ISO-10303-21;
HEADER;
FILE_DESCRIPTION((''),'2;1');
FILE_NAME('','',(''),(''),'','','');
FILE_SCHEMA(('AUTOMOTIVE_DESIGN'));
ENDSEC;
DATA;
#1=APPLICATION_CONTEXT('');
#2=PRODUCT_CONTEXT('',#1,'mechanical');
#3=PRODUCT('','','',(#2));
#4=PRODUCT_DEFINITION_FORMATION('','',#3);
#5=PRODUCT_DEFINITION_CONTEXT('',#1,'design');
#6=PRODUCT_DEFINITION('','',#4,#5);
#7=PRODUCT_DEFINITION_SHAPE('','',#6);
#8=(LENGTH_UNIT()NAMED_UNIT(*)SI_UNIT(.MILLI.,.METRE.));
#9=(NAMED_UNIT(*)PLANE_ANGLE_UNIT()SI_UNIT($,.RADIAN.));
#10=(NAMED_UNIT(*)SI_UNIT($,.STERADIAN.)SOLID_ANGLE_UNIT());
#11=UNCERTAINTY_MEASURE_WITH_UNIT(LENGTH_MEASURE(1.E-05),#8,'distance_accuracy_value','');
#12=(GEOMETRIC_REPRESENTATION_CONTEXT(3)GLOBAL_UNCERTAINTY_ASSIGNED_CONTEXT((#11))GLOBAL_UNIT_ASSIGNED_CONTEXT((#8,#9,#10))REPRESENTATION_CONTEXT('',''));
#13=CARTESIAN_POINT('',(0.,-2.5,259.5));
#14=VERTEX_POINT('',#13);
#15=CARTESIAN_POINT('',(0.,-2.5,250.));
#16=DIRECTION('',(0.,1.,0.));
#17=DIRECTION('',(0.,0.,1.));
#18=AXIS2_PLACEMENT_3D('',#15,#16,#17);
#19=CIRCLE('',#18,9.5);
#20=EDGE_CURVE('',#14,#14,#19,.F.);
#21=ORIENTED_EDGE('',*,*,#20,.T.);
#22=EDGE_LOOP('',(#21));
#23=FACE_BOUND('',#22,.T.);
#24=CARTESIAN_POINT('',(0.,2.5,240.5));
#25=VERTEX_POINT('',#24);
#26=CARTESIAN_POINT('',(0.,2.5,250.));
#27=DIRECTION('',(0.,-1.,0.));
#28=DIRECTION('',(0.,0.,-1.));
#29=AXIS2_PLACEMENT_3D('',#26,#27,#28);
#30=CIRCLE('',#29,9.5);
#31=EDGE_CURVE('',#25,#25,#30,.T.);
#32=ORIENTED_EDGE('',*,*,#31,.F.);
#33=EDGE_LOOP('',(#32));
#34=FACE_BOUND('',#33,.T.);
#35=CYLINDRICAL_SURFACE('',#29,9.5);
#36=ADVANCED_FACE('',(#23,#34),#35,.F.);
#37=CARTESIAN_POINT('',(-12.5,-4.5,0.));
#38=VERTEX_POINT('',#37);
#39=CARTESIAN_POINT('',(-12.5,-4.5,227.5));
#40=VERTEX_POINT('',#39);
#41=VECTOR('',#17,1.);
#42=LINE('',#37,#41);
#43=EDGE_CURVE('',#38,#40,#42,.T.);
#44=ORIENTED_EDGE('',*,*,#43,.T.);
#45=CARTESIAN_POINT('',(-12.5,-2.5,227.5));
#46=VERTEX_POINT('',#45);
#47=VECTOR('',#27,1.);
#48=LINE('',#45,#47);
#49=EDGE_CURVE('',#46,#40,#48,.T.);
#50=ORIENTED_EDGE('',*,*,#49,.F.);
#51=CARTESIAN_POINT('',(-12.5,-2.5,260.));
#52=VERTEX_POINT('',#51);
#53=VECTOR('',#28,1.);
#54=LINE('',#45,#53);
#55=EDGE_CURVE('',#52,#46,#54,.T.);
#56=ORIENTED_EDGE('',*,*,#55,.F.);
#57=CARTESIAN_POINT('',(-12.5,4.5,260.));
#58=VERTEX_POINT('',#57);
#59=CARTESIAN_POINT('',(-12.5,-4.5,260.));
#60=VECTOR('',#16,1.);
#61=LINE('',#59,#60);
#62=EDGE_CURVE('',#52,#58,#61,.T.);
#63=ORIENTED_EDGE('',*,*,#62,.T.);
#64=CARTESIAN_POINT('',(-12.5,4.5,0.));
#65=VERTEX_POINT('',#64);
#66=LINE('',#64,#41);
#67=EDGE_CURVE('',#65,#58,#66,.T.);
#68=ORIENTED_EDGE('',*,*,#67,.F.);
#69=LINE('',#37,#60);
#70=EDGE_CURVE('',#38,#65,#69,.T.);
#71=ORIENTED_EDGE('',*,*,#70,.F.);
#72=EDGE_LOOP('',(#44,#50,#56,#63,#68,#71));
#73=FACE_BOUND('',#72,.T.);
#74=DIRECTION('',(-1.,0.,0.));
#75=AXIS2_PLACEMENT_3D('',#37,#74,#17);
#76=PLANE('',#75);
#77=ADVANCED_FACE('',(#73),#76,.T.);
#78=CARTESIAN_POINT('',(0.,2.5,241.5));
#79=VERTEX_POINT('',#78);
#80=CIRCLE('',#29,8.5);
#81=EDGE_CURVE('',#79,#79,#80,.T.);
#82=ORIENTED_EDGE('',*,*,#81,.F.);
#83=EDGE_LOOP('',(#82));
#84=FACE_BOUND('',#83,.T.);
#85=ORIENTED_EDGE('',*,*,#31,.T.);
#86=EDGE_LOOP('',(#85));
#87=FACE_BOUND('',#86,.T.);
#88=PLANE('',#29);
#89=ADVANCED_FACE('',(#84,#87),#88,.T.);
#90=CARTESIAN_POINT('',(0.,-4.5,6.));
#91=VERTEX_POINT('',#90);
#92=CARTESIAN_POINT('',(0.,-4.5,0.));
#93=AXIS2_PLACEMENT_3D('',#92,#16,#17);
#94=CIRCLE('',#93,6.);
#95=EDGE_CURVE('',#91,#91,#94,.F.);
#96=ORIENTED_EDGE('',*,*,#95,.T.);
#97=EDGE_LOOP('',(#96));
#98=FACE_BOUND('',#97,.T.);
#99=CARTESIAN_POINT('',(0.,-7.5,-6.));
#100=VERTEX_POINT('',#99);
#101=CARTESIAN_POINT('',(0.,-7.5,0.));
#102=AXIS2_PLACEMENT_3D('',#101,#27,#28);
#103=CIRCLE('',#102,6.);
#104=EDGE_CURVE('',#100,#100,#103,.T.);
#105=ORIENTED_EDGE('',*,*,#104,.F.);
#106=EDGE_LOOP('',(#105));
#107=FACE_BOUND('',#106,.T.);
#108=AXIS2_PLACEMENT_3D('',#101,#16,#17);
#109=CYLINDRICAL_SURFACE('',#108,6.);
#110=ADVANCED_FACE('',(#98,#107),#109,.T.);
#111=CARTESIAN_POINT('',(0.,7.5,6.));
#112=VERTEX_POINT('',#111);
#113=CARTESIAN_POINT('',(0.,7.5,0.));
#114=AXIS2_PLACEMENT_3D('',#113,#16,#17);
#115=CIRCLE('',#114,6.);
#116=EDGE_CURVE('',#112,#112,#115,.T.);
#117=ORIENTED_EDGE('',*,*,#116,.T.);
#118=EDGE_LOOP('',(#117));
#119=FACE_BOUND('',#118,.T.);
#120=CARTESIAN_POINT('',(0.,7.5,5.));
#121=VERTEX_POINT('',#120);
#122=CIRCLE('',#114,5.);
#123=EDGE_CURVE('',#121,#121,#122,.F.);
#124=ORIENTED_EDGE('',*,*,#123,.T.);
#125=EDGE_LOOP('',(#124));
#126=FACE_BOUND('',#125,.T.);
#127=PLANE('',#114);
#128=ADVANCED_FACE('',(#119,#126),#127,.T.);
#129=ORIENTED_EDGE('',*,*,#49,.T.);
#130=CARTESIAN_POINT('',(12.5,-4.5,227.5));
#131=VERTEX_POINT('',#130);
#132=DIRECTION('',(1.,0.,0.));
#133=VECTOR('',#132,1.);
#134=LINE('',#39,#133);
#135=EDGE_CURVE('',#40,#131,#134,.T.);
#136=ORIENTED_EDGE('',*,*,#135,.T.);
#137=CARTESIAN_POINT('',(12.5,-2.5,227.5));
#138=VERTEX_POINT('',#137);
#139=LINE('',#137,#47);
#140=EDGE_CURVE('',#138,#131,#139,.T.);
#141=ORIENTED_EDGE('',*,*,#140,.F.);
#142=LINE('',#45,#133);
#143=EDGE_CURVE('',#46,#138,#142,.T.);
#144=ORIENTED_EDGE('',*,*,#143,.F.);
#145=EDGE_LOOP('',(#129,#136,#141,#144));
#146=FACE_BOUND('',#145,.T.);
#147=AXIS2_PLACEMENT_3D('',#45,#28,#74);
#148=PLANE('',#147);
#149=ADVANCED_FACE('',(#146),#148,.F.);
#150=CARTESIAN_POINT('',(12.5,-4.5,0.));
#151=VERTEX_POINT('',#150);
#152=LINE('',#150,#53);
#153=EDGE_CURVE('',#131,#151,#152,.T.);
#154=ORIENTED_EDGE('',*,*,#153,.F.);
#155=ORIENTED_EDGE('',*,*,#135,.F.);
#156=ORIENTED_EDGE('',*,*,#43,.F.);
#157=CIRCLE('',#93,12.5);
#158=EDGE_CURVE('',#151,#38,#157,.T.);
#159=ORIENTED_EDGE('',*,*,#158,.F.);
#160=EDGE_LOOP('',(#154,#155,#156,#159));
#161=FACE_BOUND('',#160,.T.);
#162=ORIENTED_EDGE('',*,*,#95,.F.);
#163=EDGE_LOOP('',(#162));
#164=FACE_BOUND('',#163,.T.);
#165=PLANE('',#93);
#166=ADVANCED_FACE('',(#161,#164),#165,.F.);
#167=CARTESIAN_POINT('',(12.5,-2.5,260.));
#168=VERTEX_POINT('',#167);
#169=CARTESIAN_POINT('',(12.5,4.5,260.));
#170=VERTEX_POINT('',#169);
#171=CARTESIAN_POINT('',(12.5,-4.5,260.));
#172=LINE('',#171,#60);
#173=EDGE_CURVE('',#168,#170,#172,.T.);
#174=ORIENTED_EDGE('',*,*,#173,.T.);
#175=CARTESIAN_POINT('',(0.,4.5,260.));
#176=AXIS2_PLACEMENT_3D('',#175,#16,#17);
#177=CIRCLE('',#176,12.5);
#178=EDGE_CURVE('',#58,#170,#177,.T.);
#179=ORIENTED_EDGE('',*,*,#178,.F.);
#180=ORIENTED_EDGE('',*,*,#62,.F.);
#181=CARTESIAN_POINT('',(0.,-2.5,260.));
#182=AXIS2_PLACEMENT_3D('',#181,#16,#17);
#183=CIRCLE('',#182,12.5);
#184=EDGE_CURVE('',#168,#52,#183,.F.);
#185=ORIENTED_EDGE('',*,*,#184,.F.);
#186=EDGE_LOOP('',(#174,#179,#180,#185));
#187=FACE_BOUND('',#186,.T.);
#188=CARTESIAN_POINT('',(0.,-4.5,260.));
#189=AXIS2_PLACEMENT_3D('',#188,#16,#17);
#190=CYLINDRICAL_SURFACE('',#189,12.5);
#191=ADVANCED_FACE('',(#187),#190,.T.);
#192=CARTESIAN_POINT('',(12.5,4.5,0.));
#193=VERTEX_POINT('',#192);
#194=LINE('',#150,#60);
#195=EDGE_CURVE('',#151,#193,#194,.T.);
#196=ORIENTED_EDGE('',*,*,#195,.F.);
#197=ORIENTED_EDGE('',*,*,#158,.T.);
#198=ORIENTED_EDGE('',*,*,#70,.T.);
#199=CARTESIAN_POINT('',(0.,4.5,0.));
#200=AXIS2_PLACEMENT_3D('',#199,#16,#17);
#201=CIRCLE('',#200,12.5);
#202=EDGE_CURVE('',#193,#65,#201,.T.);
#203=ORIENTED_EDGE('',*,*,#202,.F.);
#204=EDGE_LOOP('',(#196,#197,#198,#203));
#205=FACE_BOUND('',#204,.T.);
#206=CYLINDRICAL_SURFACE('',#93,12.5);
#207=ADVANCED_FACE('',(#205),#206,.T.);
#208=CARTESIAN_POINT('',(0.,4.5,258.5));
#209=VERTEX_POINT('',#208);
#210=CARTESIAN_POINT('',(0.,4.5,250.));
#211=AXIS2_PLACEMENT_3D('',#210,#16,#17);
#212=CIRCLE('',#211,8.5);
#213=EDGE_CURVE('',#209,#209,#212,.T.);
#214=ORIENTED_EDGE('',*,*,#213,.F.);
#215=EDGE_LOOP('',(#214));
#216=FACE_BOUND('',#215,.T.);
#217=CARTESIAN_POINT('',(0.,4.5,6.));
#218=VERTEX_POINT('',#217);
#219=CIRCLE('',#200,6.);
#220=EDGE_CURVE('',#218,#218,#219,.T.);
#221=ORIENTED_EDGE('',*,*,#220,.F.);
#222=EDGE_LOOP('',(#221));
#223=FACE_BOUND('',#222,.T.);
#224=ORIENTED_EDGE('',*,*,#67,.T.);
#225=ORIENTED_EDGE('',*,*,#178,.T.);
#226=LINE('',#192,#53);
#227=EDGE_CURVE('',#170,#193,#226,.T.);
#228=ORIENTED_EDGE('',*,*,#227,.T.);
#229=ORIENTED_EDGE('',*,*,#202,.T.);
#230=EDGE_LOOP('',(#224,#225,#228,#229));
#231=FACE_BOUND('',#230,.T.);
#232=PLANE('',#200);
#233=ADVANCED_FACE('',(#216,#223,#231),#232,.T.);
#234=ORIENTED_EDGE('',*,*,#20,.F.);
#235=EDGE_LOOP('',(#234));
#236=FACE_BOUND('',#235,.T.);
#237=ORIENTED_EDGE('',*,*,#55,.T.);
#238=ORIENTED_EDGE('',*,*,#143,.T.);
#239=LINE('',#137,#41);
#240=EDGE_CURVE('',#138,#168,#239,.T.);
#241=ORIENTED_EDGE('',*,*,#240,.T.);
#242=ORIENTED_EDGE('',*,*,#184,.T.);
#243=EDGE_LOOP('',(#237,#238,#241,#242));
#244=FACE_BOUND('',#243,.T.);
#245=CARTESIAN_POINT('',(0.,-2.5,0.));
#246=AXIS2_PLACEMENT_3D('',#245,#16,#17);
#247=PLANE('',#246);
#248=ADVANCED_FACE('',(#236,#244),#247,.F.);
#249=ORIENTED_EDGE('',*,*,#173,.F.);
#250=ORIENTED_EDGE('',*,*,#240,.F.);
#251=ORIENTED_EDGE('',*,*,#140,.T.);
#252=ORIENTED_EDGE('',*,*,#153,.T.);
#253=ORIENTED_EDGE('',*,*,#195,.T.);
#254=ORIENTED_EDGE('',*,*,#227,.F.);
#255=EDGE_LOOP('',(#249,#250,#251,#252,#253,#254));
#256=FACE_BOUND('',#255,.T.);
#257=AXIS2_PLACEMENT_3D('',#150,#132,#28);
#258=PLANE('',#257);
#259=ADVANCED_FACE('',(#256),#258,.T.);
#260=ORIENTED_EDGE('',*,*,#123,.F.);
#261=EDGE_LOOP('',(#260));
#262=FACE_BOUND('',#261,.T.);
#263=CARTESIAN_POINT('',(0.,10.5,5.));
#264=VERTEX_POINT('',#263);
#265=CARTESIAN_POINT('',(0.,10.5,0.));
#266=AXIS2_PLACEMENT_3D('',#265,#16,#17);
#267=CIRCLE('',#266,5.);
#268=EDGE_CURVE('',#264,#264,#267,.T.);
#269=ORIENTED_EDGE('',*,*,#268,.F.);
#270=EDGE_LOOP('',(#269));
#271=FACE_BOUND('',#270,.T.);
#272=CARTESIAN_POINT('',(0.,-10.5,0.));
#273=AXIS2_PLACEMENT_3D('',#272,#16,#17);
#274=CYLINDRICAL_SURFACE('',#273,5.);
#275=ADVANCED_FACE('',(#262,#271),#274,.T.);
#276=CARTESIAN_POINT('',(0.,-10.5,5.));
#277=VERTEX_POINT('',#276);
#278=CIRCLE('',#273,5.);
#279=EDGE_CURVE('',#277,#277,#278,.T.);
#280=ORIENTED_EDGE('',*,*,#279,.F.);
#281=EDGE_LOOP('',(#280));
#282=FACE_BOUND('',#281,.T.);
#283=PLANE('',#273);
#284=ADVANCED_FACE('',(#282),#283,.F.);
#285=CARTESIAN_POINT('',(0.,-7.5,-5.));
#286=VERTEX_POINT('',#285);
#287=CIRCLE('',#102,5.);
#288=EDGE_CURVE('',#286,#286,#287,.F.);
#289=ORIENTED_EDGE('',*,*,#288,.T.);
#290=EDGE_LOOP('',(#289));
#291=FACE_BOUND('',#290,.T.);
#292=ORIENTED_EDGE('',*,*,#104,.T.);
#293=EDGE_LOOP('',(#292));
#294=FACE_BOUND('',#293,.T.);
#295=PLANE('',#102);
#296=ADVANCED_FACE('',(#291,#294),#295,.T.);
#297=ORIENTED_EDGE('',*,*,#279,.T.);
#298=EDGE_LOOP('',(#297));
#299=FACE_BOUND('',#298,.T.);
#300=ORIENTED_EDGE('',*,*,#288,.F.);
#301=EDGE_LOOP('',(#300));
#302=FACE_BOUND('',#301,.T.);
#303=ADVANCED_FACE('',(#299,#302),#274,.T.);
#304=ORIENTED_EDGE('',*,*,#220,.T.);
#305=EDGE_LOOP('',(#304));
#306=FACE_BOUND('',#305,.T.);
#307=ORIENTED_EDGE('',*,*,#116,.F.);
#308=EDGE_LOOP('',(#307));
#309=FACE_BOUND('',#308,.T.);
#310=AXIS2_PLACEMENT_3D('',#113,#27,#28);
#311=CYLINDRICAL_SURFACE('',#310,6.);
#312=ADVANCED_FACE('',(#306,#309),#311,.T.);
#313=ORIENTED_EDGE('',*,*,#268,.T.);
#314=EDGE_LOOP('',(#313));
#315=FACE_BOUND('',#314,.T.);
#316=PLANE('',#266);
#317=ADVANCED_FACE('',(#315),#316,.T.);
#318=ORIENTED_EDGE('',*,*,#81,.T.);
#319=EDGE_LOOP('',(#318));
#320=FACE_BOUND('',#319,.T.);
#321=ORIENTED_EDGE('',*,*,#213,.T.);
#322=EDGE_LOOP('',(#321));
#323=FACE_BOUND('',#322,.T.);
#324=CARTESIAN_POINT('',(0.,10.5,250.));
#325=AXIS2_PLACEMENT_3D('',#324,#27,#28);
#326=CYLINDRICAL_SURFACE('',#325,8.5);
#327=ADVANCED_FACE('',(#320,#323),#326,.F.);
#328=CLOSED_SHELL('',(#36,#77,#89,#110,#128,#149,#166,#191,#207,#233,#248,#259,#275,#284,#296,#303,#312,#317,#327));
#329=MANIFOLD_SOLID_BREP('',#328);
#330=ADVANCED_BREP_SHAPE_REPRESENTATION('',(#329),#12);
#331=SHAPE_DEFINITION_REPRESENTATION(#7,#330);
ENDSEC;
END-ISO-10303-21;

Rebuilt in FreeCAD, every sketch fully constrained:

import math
import FreeCAD as App
import Part
import Sketcher

V = App.Vector
Q = App.Units.Quantity


def add_polygon(sketch, points):
    """Adds a closed chain of lines whose ends are joined by coincident constraints."""
    first, n = sketch.GeometryCount, len(points)
    for a, b in zip(points, points[1:] + points[:1]):
        sketch.addGeometry(Part.LineSegment(App.Vector(*a, 0), App.Vector(*b, 0)), False)
    for i in range(n):
        sketch.addConstraint(Sketcher.Constraint("Coincident", first + i, 2, first + (i + 1) % n, 1))

doc = App.newDocument("Part")
body = doc.addObject("PartDesign::Body", "Body")

sketch1 = body.newObject("Sketcher::SketchObject", "Sketch")
sketch1.AttachmentSupport = (doc.getObject("XZ_Plane"), [""])
sketch1.MapMode = "FlatFace"
sketch1.addGeometry(Part.Circle(V(0, 0, 0), V(0, 0, 1), 5), False)
sketch1.addConstraint(Sketcher.Constraint("Coincident", 0, 3, -1, 1))
sketch1.addConstraint(Sketcher.Constraint("Diameter", 0, Q("10 mm")))
pad1 = body.newObject("PartDesign::Pad", "Pad")
pad1.Profile = sketch1
pad1.Type = "TwoLengths"
pad1.Length = 10.5
pad1.Length2 = 10.5
pad1.Reversed = True

sketch2 = body.newObject("Sketcher::SketchObject", "Sketch001")
sketch2.AttachmentSupport = (doc.getObject("XZ_Plane"), [""])
sketch2.MapMode = "FlatFace"
sketch2.addGeometry(Part.LineSegment(V(-12, 0, 0), V(-12, 260, 0)), False)
sketch2.addGeometry(Part.ArcOfCircle(Part.Circle(V(0, 260, 0), V(0, 0, 1), 12), math.radians(0), math.radians(180)), False)
sketch2.addGeometry(Part.LineSegment(V(12, 260, 0), V(12, 0, 0)), False)
sketch2.addGeometry(Part.ArcOfCircle(Part.Circle(V(0, 0, 0), V(0, 0, 1), 12), math.radians(180), math.radians(360)), False)
sketch2.addConstraint(Sketcher.Constraint("Tangent", 0, 2, 1, 2))
sketch2.addConstraint(Sketcher.Constraint("Tangent", 1, 1, 2, 1))
sketch2.addConstraint(Sketcher.Constraint("Tangent", 2, 2, 3, 2))
sketch2.addConstraint(Sketcher.Constraint("Tangent", 3, 1, 0, 1))
sketch2.addConstraint(Sketcher.Constraint("Vertical", 0))
sketch2.addConstraint(Sketcher.Constraint("Vertical", 2))
sketch2.addConstraint(Sketcher.Constraint("Coincident", 3, 3, -1, 1))
sketch2.addConstraint(Sketcher.Constraint("Radius", 1, Q("12.5 mm")))
sketch2.addConstraint(Sketcher.Constraint("DistanceY", 0, 1, 0, 2, Q("260 mm")))
pad2 = body.newObject("PartDesign::Pad", "Pad001")
pad2.Profile = sketch2
pad2.Type = "TwoLengths"
pad2.Length = 4.5
pad2.Length2 = 4.5
pad2.Reversed = True

sketch3 = body.newObject("Sketcher::SketchObject", "Sketch002")
sketch3.AttachmentSupport = (doc.getObject("XZ_Plane"), [""])
sketch3.MapMode = "FlatFace"
sketch3.AttachmentOffset = App.Placement(V(0, 0, 4.5), App.Rotation())
sketch3.addGeometry(Part.Circle(V(0, 0, 0), V(0, 0, 1), 6), False)
sketch3.addConstraint(Sketcher.Constraint("Coincident", 0, 3, -1, 1))
sketch3.addConstraint(Sketcher.Constraint("Diameter", 0, Q("12 mm")))
pad3 = body.newObject("PartDesign::Pad", "Pad002")
pad3.Profile = sketch3
pad3.Length = 3

sketch4 = body.newObject("Sketcher::SketchObject", "Sketch003")
sketch4.AttachmentSupport = (doc.getObject("XZ_Plane"), [""])
sketch4.MapMode = "FlatFace"
sketch4.AttachmentOffset = App.Placement(V(0, 0, -4.5), App.Rotation())
sketch4.addGeometry(Part.Circle(V(0, 0, 0), V(0, 0, 1), 6), False)
sketch4.addConstraint(Sketcher.Constraint("Coincident", 0, 3, -1, 1))
sketch4.addConstraint(Sketcher.Constraint("Diameter", 0, Q("12 mm")))
pad4 = body.newObject("PartDesign::Pad", "Pad003")
pad4.Profile = sketch4
pad4.Length = 3
pad4.Reversed = True

sketch5 = body.newObject("Sketcher::SketchObject", "Sketch004")
sketch5.AttachmentSupport = (doc.getObject("XZ_Plane"), [""])
sketch5.MapMode = "FlatFace"
sketch5.AttachmentOffset = App.Placement(V(0, 0, 4.5), App.Rotation())
sketch5.addGeometry(Part.Circle(V(0, 250, 0), V(0, 0, 1), 10), False)
sketch5.addConstraint(Sketcher.Constraint("PointOnObject", 0, 3, -2))
sketch5.addConstraint(Sketcher.Constraint("Diameter", 0, Q("19 mm")))
sketch5.addConstraint(Sketcher.Constraint("DistanceY", -1, 1, 0, 3, Q("250 mm")))
pocket1 = body.newObject("PartDesign::Pocket", "Pocket")
pocket1.Profile = sketch5
pocket1.Length = 7

sketch6 = body.newObject("Sketcher::SketchObject", "Sketch005")
sketch6.AttachmentSupport = (doc.getObject("XZ_Plane"), [""])
sketch6.MapMode = "FlatFace"
sketch6.AttachmentOffset = App.Placement(V(0, 0, -2.5), App.Rotation())
sketch6.addGeometry(Part.Circle(V(0, 250, 0), V(0, 0, 1), 8), False)
sketch6.addConstraint(Sketcher.Constraint("PointOnObject", 0, 3, -2))
sketch6.addConstraint(Sketcher.Constraint("Diameter", 0, Q("17 mm")))
sketch6.addConstraint(Sketcher.Constraint("DistanceY", -1, 1, 0, 3, Q("250 mm")))
pocket2 = body.newObject("PartDesign::Pocket", "Pocket001")
pocket2.Profile = sketch6
pocket2.Type = "ThroughAll"

sketch7 = body.newObject("Sketcher::SketchObject", "Sketch006")
sketch7.AttachmentSupport = (doc.getObject("XZ_Plane"), [""])
sketch7.MapMode = "FlatFace"
sketch7.AttachmentOffset = App.Placement(V(0, 0, 4.5), App.Rotation())
add_polygon(sketch7, [(-12, 272), (-12, 228), (12, 228), (12, 272)])
sketch7.addConstraint(Sketcher.Constraint("Vertical", 0))
sketch7.addConstraint(Sketcher.Constraint("Horizontal", 1))
sketch7.addConstraint(Sketcher.Constraint("Vertical", 2))
sketch7.addConstraint(Sketcher.Constraint("Horizontal", 3))
sketch7.addConstraint(Sketcher.Constraint("DistanceX", 1, 1, 1, 2, Q("25 mm")))
sketch7.addConstraint(Sketcher.Constraint("DistanceY", 0, 2, 0, 1, Q("45 mm")))
sketch7.addConstraint(Sketcher.Constraint("DistanceX", 0, 2, -1, 1, Q("12.5 mm")))
sketch7.addConstraint(Sketcher.Constraint("DistanceY", -1, 1, 0, 2, Q("227.5 mm")))
pocket3 = body.newObject("PartDesign::Pocket", "Pocket002")
pocket3.Profile = sketch7
pocket3.Length = 2

doc.recompute()
